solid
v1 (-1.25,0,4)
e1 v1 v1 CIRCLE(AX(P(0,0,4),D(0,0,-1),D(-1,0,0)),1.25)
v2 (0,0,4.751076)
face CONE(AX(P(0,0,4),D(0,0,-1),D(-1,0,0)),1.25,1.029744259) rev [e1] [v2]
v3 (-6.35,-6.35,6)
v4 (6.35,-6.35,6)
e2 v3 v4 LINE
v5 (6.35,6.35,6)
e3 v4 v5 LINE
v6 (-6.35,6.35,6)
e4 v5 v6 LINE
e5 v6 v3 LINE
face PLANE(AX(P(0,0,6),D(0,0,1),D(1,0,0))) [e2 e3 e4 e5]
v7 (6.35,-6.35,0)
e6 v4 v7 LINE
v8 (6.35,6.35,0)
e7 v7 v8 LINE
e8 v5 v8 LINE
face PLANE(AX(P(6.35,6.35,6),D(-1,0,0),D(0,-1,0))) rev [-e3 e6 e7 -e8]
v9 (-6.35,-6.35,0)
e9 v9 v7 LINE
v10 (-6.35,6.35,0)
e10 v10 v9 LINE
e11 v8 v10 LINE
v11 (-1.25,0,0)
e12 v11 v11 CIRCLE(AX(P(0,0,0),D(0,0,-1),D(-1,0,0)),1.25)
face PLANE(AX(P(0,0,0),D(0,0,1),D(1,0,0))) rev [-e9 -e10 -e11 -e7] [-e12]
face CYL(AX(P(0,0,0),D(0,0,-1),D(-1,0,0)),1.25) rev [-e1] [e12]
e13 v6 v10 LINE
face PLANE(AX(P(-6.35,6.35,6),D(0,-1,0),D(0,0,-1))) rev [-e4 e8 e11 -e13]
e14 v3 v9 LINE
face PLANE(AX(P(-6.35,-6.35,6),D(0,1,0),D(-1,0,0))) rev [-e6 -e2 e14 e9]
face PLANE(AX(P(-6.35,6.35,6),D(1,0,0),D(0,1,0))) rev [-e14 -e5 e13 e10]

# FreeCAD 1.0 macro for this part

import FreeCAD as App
import Part
import Sketcher
from FreeCAD import Vector


def add_polygon(sketch, points):
    """Adds a closed chain of lines whose ends are joined by coincident constraints."""
    first, n = sketch.GeometryCount, len(points)
    for a, b in zip(points, points[1:] + points[:1]):
        sketch.addGeometry(Part.LineSegment(App.Vector(*a, 0), App.Vector(*b, 0)), False)
    for i in range(n):
        sketch.addConstraint(Sketcher.Constraint("Coincident", first + i, 2, first + (i + 1) % n, 1))

doc = App.newDocument("Part")
body = doc.addObject("PartDesign::Body", "Body")

sketch1 = body.newObject("Sketcher::SketchObject", "Sketch")
sketch1.AttachmentSupport = (doc.getObject("XY_Plane"), [""])
sketch1.MapMode = "FlatFace"
add_polygon(sketch1, [(-6, 6), (-6, -6), (6, -6), (6, 6)])
sketch1.addConstraint(Sketcher.Constraint("Vertical", 0))
sketch1.addConstraint(Sketcher.Constraint("Horizontal", 1))
sketch1.addConstraint(Sketcher.Constraint("Vertical", 2))
sketch1.addConstraint(Sketcher.Constraint("Horizontal", 3))
sketch1.addConstraint(Sketcher.Constraint("Symmetric", 0, 2, 2, 2, -1, 1))
sketch1.addConstraint(Sketcher.Constraint("Equal", 3, 0))
sketch1.addConstraint(Sketcher.Constraint("DistanceX", 1, 1, 1, 2, 12.7))
pad1 = body.newObject("PartDesign::Pad", "Pad")
pad1.Profile = sketch1
pad1.Length = 6

sketch2 = body.newObject("Sketcher::SketchObject", "Sketch001")
sketch2.AttachmentSupport = (doc.getObject("XY_Plane"), [""])
sketch2.MapMode = "FlatFace"
sketch2.addGeometry(Part.Circle(Vector(0, 0, 0), Vector(0, 0, 1), 1.2), False)
sketch2.addConstraint(Sketcher.Constraint("Coincident", 0, 3, -1, 1))
sketch2.addConstraint(Sketcher.Constraint("Diameter", 0, 2.5))
doc.recompute()
hole = body.newObject("PartDesign::Hole", "Hole")
hole.Profile = sketch2
hole.ThreadType = "None"
hole.Diameter = 2.5
hole.DepthType = "Dimension"
hole.Depth = 4
hole.DrillPoint = "Angled"
hole.DrillPointAngle = 118
hole.Reversed = True

doc.recompute()
